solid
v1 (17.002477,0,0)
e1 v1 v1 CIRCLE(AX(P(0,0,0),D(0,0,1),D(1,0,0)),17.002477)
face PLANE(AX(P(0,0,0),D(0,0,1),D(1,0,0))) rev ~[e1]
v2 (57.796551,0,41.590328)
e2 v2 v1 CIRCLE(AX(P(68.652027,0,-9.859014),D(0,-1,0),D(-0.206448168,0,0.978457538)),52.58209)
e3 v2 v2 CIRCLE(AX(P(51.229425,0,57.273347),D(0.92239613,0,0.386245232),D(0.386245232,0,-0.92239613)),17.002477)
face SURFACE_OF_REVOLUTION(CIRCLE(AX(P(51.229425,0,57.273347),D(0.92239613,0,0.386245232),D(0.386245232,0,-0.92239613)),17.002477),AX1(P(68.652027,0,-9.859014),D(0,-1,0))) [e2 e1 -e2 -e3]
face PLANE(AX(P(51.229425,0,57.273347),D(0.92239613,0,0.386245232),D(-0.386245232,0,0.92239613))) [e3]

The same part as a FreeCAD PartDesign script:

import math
import FreeCAD as App
import Part
import Sketcher

V = App.Vector

doc = App.newDocument("Part")
body = doc.addObject("PartDesign::Body", "Body")

# Sketch on XY plane
sketch1 = body.newObject("Sketcher::SketchObject", "Sketch")
sketch1.AttachmentSupport = (doc.getObject("XY_Plane"), [""])
sketch1.MapMode = "FlatFace"
sketch1.addGeometry(Part.Circle(V(0, 0, 0), V(0, 0, 1), 17.002477), False)
sketch1.addConstraint(Sketcher.Constraint("Coincident", 0, 3, -1, 1))
sketch1.addConstraint(Sketcher.Constraint("Diameter", 0, 34.004954))

# Sketch on XZ plane
sketch2 = body.newObject("Sketcher::SketchObject", "Sketch001")
sketch2.AttachmentSupport = (doc.getObject("XZ_Plane"), [""])
sketch2.MapMode = "FlatFace"
sketch2.addGeometry(Part.ArcOfCircle(Part.Circle(V(68.652027, -9.859014, 0), V(0, 0, 1), 69.356333), math.radians(104.548782), math.radians(171.827714)), False)
sketch2.addConstraint(Sketcher.Constraint("Coincident", 0, 2, -1, 1))
sketch2.addConstraint(Sketcher.Constraint("Radius", 0, 69.356333))
sketch2.addConstraint(Sketcher.Constraint("DistanceX", 0, 1, 0, 3, 17.422602))
sketch2.addConstraint(Sketcher.Constraint("DistanceX", -1, 1, 0, 3, 68.652027))
doc.recompute()

additivepipe = body.newObject("PartDesign::AdditivePipe", "AdditivePipe")
additivepipe.Profile = sketch1
additivepipe.Spine = (sketch2, ["Edge1"])

doc.recompute()
